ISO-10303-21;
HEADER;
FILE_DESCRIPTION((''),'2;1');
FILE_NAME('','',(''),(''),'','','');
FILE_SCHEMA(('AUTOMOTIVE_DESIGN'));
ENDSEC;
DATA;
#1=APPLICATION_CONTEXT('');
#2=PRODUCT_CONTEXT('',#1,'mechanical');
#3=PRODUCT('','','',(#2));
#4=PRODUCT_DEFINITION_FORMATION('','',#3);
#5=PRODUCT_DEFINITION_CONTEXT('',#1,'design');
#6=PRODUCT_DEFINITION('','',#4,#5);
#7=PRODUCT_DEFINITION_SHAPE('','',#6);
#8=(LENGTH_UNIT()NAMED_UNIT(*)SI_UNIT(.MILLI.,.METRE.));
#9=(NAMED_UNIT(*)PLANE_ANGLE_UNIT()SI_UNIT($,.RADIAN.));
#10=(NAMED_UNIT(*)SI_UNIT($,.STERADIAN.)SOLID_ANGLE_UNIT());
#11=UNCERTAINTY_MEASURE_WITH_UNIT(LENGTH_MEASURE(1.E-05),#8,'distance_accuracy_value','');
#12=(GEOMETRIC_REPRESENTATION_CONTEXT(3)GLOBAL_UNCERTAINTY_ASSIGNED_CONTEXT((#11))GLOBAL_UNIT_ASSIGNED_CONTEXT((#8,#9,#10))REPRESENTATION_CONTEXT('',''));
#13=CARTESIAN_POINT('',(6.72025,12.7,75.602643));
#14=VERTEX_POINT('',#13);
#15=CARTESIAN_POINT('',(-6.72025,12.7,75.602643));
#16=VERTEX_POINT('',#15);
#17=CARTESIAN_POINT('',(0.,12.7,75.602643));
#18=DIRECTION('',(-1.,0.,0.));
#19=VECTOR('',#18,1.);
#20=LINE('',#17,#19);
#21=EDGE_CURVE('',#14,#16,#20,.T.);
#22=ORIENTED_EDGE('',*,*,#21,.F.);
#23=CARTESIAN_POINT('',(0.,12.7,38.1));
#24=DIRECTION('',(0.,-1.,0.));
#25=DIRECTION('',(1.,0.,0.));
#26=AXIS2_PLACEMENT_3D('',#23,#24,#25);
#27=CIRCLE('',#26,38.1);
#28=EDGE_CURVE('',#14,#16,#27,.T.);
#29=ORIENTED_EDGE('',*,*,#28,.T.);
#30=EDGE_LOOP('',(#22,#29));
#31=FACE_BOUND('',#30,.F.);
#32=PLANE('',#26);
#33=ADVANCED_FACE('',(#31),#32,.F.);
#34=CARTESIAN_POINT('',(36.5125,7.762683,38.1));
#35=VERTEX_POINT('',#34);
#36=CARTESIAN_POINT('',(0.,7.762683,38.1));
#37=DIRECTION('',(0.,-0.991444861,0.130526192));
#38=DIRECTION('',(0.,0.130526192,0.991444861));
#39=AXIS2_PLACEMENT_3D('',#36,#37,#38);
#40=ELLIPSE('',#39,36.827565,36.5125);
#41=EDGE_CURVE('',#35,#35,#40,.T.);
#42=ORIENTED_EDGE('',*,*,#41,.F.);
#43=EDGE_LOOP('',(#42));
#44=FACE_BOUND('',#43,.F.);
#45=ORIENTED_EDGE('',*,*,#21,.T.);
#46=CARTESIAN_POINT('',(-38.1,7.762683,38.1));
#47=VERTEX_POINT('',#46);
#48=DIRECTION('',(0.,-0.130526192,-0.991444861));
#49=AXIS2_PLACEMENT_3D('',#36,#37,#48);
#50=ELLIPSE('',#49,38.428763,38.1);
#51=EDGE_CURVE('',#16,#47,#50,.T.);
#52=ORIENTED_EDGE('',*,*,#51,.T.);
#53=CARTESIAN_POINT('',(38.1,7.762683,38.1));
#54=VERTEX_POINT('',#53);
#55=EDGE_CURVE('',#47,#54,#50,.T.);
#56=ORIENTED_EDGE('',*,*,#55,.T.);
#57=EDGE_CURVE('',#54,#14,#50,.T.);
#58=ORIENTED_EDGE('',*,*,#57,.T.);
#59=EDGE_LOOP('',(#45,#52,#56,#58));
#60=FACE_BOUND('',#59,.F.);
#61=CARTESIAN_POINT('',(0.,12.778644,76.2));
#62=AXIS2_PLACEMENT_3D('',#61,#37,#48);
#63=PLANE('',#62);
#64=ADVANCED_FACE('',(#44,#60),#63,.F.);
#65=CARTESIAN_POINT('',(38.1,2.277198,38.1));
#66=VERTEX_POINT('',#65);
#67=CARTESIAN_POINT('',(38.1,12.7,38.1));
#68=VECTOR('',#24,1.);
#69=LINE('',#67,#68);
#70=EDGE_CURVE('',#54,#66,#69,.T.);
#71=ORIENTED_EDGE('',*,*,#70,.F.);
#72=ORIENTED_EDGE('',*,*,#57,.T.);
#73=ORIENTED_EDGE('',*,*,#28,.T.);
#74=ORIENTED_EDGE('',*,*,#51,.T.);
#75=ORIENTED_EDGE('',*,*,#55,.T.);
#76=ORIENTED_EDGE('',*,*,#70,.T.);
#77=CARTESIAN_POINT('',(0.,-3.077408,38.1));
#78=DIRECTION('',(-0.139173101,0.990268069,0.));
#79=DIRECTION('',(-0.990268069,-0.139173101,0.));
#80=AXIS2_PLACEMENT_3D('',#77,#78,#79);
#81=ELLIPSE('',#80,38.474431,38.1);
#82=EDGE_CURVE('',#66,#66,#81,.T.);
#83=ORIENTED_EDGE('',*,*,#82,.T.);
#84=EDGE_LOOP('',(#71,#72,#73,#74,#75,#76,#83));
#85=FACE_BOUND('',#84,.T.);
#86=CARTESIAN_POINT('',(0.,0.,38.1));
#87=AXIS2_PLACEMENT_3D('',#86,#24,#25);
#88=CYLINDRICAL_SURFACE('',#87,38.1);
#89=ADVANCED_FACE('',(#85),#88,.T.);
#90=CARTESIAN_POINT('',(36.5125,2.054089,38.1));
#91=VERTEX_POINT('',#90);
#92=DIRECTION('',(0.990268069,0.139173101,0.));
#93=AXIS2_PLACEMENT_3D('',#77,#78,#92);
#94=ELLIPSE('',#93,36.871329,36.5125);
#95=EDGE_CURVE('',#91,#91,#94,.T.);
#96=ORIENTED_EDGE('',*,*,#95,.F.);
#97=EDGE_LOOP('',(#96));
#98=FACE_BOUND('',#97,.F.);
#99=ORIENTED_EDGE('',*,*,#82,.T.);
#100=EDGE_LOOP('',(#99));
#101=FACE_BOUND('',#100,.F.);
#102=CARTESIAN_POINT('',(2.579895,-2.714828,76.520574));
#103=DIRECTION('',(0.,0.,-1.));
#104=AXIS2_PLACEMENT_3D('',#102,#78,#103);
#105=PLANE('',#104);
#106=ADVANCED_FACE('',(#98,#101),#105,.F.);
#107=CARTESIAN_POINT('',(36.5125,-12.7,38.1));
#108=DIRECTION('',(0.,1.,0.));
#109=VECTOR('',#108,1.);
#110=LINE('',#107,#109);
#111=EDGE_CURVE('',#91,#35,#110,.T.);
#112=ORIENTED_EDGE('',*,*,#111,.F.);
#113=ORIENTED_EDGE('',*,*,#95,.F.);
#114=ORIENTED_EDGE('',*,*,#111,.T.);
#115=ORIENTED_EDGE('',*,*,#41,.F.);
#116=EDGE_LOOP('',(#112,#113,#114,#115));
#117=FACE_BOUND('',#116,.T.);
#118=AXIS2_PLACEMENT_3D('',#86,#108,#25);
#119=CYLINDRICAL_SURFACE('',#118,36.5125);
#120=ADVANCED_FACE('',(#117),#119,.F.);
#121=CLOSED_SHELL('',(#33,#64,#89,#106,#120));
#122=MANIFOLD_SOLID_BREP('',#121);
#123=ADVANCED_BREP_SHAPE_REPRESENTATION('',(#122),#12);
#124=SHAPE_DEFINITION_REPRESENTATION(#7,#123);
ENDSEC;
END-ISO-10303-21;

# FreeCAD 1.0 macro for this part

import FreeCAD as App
import Part
import Sketcher
from FreeCAD import Vector
Q = App.Units.Quantity


def add_polygon(sketch, points):
    """Adds a closed chain of lines whose ends are joined by coincident constraints."""
    first, n = sketch.GeometryCount, len(points)
    for a, b in zip(points, points[1:] + points[:1]):
        sketch.addGeometry(Part.LineSegment(App.Vector(*a, 0), App.Vector(*b, 0)), False)
    for i in range(n):
        sketch.addConstraint(Sketcher.Constraint("Coincident", first + i, 2, first + (i + 1) % n, 1))

doc = App.newDocument("Part")
body = doc.addObject("PartDesign::Body", "Body")

sketch1 = body.newObject("Sketcher::SketchObject", "Sketch")
sketch1.AttachmentSupport = (doc.getObject("XZ_Plane"), [""])
sketch1.MapMode = "FlatFace"
sketch1.addGeometry([
    Part.Circle(Vector(0, 38, 0), Vector(0, 0, 1), 38),
    Part.Circle(Vector(0, 38, 0), Vector(0, 0, 1), 37),
], False)
sketch1.addConstraint([
    Sketcher.Constraint("Coincident", 1, 3, 0, 3),
    Sketcher.Constraint("PointOnObject", 0, 3, -2),
    Sketcher.Constraint("Diameter", 0, Q("3 in")),
    Sketcher.Constraint("Diameter", 1, Q("2.875 in")),
    Sketcher.Constraint("DistanceY", -1, 1, 0, 3, Q("1.5 in")),
])
pad1 = body.newObject("PartDesign::Pad", "Pad")
pad1.Profile = sketch1
pad1.Length = Q("1 in")
pad1.Midplane = True

sketch2 = body.newObject("Sketcher::SketchObject", "Sketch001")
sketch2.AttachmentSupport = (doc.getObject("YZ_Plane"), [""])
sketch2.MapMode = "FlatFace"
add_polygon(sketch2, [(13, -9), (13, 76), (2, -9)])
sketch2.addConstraint([
    Sketcher.Constraint("Vertical", 0),
    Sketcher.Constraint("Horizontal", 2),
    Sketcher.Constraint("DistanceY", -1, 1, 0, 2, Q("3 in")),
    Sketcher.Constraint("Angle", 1, Q("-97.5 deg")),
    Sketcher.Constraint("DistanceY", 0, 1, 0, 2, 85.019222),
    Sketcher.Constraint("DistanceX", -1, 1, 1, 2, 1.585651),
])
pocket1 = body.newObject("PartDesign::Pocket", "Pocket")
pocket1.Profile = sketch2
pocket1.Length = Q("3 in")
pocket1.Midplane = True

sketch3 = body.newObject("Sketcher::SketchObject", "Sketch002")
sketch3.Placement = App.Placement(Vector(2.15577, 0.302974, 0), App.Rotation(Vector(0.139173101, -0.990268069, 0), Vector(0, 0, 1.000000001), Vector(-0.990268069, -0.139173101, 0), "ZXY"))
add_polygon(sketch3, [(32, 76), (3, 77), (3, -2), (32, -2)])
sketch3.addConstraint([
    Sketcher.Constraint("Vertical", 1),
    Sketcher.Constraint("Horizontal", 2),
    Sketcher.Constraint("Vertical", 3),
    Sketcher.Constraint("DistanceX", 2, 1, 2, 2, 28.566784),
    Sketcher.Constraint("DistanceY", 1, 2, 1, 1, 78.751633),
    Sketcher.Constraint("DistanceY", 3, 1, 3, 2, 78.254283),
    Sketcher.Constraint("DistanceX", -1, 1, 0, 2, 3.047459),
    Sketcher.Constraint("DistanceY", 1, 2, -1, 1, 2.231058),
])
pocket2 = body.newObject("PartDesign::Pocket", "Pocket001")
pocket2.Profile = sketch3
pocket2.Length = Q("4 in")
pocket2.Midplane = True

doc.recompute()
